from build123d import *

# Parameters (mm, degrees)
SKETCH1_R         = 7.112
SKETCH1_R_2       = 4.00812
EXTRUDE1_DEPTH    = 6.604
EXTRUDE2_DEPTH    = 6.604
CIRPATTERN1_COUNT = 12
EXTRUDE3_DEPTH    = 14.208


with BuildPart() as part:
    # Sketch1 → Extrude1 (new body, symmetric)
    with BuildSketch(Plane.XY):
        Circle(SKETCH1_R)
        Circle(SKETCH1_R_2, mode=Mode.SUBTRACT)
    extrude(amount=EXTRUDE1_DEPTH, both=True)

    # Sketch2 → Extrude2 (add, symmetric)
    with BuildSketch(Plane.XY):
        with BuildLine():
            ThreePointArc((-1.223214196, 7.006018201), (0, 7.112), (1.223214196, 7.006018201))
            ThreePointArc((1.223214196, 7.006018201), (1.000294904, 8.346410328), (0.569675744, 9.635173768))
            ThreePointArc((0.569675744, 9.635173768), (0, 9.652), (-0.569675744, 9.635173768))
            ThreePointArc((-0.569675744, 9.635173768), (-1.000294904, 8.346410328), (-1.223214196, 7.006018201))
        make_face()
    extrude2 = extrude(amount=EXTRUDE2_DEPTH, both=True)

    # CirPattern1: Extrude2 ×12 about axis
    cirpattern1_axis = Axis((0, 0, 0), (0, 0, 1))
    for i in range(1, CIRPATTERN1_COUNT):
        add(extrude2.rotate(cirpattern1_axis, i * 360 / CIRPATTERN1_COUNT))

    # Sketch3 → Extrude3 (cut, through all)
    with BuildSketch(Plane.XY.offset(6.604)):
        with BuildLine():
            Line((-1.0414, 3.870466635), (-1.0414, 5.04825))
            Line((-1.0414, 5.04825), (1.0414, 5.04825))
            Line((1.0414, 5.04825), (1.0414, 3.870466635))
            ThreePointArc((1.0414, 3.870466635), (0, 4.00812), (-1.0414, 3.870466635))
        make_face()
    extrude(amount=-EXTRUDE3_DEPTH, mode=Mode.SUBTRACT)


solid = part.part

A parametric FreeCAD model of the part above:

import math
import FreeCAD as App
import Part
import Sketcher
Q = App.Units.Quantity

doc = App.newDocument("Part")
params = doc.addObject("Spreadsheet::Sheet", "Params")
for row, (alias, value) in enumerate([
    ("sketch1_diameter", "0.56 in"),
    ("pad1_length", "0.52 in"),
    ("sketch2_radius", "0.28 in"),
    ("sketch2_radius2", "0.38 in"),
    ("pad2_length", "0.52 in"),
    ("sketch3_width", "0.082 in"),
], start=1):
    params.set(f"A{row}", alias)
    params.set(f"B{row}", "=" + value)
    params.setAlias(f"B{row}", alias)

body = doc.addObject("PartDesign::Body", "Body")

sketch1 = doc.addObject("Sketcher::SketchObject", "Sketch")
body.addObject(sketch1)
sketch1.AttachmentSupport = (doc.XY_Plane, [""])
sketch1.MapMode = "FlatFace"
sketch1.addGeometry([
    Part.Circle(App.Vector(0, 0, 0), App.Vector(0, 0, 1), 7.1),
    Part.Circle(App.Vector(0, 0, 0), App.Vector(0, 0, 1), 4),
], False)
sketch1.addConstraint([
    Sketcher.Constraint("Coincident", 0, 3, -1, 1),
    Sketcher.Constraint("Coincident", 1, 3, -1, 1),
    Sketcher.Constraint("Diameter", 0, Q("0.56 in")),
    Sketcher.Constraint("Diameter", 1, Q("0.3156 in")),
])
sketch1.setExpression("Constraints[2]", "Params.sketch1_diameter")
pad1 = doc.addObject("PartDesign::Pad", "Pad")
body.addObject(pad1)
pad1.Profile = sketch1
pad1.setExpression("Length", "Params.pad1_length")
pad1.Midplane = True

sketch2 = doc.addObject("Sketcher::SketchObject", "Sketch001")
body.addObject(sketch2)
sketch2.AttachmentSupport = (doc.XY_Plane, [""])
sketch2.MapMode = "FlatFace"
sketch2.addGeometry([
    Part.ArcOfCircle(Part.Circle(App.Vector(0, 0, 0), App.Vector(0, 0, 1), 7.1), math.radians(80.1), math.radians(99.9)),
    Part.ArcOfCircle(Part.Circle(App.Vector(-7.4, 6.3, 0), App.Vector(0, 0, 1), 8.6), math.radians(4.93), math.radians(22.99)),
    Part.ArcOfCircle(Part.Circle(App.Vector(0, 0, 0), App.Vector(0, 0, 1), 9.7), math.radians(86.62), math.radians(93.38)),
    Part.ArcOfCircle(Part.Circle(App.Vector(7.4, 6.3, 0), App.Vector(0, 0, 1), 8.6), math.radians(157.01), math.radians(175.07)),
], False)
sketch2.addConstraint([
    Sketcher.Constraint("Coincident", 0, 1, 1, 1),
    Sketcher.Constraint("Coincident", 1, 2, 2, 1),
    Sketcher.Constraint("Coincident", 2, 2, 3, 1),
    Sketcher.Constraint("Coincident", 3, 2, 0, 2),
    Sketcher.Constraint("Coincident", 0, 3, -1, 1),
    Sketcher.Constraint("Coincident", 2, 3, -1, 1),
    Sketcher.Constraint("Equal", 1, 3),
    Sketcher.Constraint("Symmetric", 1, 3, 3, 3, -2),
    Sketcher.Constraint("Radius", 0, Q("0.28 in")),
    Sketcher.Constraint("Radius", 2, Q("0.38 in")),
    Sketcher.Constraint("Radius", 1, 8.626951),
    Sketcher.Constraint("DistanceX", 1, 3, -1, 1, 7.37188),
    Sketcher.Constraint("DistanceY", -1, 1, 1, 3, 6.265309),
])
sketch2.setExpression("Constraints[8]", "Params.sketch2_radius")
sketch2.setExpression("Constraints[9]", "Params.sketch2_radius2")
pad2 = doc.addObject("PartDesign::Pad", "Pad001")
body.addObject(pad2)
pad2.Profile = sketch2
pad2.setExpression("Length", "Params.pad2_length")
pad2.Midplane = True
doc.recompute()

polarpattern = doc.addObject("PartDesign::PolarPattern", "PolarPattern")
body.addObject(polarpattern)
polarpattern.Originals = [pad2]
polarpattern.Axis = (doc.Z_Axis, [""])
polarpattern.Angle = 360
polarpattern.Occurrences = 12
body.Tip = polarpattern

sketch3 = doc.addObject("Sketcher::SketchObject", "Sketch002")
body.addObject(sketch3)
sketch3.AttachmentSupport = (doc.XY_Plane, [""])
sketch3.MapMode = "FlatFace"
sketch3.AttachmentOffset = App.Placement(App.Vector(0, 0, 0.26 * 25.4), App.Rotation())
sketch3.addGeometry([
    Part.LineSegment(App.Vector(-1, 5, 0), App.Vector(-1, 3.9, 0)),
    Part.ArcOfCircle(Part.Circle(App.Vector(0, 0, 0), App.Vector(0, 0, 1), 4), math.radians(75), math.radians(105)),
    Part.LineSegment(App.Vector(1, 3.9, 0), App.Vector(1, 5, 0)),
    Part.LineSegment(App.Vector(1, 5, 0), App.Vector(-1, 5, 0)),
], False)
sketch3.addConstraint([
    Sketcher.Constraint("Coincident", 0, 2, 1, 2),
    Sketcher.Constraint("Coincident", 1, 1, 2, 1),
    Sketcher.Constraint("Coincident", 2, 2, 3, 1),
    Sketcher.Constraint("Coincident", 3, 2, 0, 1),
    Sketcher.Constraint("Vertical", 0),
    Sketcher.Constraint("Vertical", 2),
    Sketcher.Constraint("Horizontal", 3),
    Sketcher.Constraint("Coincident", 1, 3, -1, 1),
    Sketcher.Constraint("Horizontal", 0, 2, 1, 1),
    Sketcher.Constraint("Radius", 1, Q("0.1578 in")),
    Sketcher.Constraint("DistanceX", 3, 2, 3, 1, Q("0.082 in")),
    Sketcher.Constraint("DistanceY", 0, 2, 0, 1, 1.177783),
])
sketch3.setExpression("Constraints[10]", "Params.sketch3_width")
pocket1 = doc.addObject("PartDesign::Pocket", "Pocket")
body.addObject(pocket1)
pocket1.Profile = sketch3
pocket1.Type = "ThroughAll"

doc.recompute()
